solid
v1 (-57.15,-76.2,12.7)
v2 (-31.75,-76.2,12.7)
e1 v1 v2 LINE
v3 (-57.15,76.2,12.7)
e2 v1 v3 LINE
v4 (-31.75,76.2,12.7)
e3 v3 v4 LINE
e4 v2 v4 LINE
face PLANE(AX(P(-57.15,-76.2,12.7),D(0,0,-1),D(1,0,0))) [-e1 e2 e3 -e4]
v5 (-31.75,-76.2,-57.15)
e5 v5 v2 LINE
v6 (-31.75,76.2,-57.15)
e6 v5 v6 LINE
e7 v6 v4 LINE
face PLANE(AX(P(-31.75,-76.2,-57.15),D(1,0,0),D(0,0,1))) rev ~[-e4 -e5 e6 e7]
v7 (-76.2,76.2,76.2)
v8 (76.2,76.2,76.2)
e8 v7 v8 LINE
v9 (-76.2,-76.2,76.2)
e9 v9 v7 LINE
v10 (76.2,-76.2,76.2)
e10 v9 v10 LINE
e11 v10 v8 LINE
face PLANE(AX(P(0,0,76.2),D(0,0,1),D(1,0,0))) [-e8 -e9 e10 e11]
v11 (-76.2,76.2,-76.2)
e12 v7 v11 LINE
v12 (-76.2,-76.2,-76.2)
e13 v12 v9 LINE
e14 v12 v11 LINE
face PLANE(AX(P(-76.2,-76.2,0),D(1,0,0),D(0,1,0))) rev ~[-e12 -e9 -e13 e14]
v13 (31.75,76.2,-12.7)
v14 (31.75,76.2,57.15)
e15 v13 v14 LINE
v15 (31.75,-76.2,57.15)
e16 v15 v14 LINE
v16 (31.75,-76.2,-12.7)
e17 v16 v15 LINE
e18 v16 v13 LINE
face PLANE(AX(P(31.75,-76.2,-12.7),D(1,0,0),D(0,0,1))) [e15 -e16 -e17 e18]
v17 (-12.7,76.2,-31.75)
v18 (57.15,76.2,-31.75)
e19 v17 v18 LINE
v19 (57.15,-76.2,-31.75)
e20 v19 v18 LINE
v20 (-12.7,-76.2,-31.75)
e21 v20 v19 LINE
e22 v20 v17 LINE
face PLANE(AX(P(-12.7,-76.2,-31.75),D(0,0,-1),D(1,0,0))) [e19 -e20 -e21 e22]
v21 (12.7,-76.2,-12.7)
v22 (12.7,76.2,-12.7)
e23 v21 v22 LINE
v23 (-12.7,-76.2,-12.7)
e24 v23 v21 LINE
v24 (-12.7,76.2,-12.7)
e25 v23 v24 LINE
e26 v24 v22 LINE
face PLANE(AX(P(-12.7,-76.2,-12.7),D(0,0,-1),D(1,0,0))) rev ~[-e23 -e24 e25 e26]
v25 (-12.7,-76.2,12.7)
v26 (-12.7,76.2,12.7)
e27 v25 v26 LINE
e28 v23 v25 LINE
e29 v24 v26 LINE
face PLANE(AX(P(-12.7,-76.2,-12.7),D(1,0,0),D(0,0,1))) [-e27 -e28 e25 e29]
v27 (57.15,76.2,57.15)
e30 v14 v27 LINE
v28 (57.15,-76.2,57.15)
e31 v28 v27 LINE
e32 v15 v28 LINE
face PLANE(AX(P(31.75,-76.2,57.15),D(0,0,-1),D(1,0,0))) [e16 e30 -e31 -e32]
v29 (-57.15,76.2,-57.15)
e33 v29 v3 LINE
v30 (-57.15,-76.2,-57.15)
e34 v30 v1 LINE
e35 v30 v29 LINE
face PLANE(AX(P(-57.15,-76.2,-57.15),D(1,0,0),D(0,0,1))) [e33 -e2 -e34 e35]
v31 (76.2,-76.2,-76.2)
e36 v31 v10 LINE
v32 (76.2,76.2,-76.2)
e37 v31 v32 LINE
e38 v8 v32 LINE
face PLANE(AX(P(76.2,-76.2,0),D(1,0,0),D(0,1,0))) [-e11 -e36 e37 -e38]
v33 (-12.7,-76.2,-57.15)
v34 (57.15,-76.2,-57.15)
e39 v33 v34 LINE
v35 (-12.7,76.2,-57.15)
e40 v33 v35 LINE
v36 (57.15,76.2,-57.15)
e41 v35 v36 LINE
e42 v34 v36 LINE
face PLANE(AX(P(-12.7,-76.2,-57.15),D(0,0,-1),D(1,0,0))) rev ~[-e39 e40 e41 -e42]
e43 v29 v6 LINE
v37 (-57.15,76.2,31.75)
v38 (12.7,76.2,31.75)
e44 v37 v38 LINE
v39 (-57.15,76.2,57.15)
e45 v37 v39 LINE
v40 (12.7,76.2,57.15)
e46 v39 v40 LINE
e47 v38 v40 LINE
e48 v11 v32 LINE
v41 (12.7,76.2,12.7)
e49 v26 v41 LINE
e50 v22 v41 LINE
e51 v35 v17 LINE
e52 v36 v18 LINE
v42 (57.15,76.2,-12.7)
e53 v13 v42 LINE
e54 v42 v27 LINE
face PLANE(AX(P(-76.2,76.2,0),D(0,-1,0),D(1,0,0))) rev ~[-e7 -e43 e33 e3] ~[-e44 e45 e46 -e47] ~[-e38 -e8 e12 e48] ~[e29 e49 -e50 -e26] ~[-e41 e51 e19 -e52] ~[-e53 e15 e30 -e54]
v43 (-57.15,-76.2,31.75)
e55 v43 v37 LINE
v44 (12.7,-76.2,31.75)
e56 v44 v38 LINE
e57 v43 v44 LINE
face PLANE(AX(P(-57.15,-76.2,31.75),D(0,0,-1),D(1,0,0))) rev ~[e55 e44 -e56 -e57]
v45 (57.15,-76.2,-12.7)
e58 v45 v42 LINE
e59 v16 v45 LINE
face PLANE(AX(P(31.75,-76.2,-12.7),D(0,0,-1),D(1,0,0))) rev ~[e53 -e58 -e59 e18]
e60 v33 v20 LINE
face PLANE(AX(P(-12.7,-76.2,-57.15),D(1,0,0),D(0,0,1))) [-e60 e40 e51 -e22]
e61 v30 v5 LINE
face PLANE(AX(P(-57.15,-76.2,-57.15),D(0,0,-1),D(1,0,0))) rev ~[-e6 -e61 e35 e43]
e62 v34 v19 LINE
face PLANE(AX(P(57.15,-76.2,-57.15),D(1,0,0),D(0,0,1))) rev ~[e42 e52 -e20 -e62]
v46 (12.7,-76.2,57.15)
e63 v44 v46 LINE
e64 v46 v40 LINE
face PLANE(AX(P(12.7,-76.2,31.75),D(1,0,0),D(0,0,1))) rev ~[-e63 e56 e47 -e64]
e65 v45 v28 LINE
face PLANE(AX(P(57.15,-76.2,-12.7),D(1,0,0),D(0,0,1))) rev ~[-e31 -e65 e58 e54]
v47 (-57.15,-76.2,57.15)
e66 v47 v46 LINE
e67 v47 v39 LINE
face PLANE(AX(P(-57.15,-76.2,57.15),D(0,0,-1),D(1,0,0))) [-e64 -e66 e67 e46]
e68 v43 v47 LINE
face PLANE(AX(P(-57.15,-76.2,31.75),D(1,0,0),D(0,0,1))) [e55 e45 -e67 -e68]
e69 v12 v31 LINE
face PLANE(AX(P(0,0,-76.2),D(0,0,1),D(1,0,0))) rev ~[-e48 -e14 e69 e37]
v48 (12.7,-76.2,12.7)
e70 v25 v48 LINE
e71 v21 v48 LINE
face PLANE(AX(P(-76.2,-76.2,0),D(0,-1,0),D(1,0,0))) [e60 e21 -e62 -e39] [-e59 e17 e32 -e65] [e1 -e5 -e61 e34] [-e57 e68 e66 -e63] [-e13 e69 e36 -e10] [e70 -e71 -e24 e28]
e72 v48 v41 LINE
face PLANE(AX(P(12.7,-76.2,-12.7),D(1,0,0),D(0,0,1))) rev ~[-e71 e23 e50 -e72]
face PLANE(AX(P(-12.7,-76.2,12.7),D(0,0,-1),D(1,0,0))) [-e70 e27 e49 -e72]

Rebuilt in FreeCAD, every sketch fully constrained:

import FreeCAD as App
import Part
import Sketcher
from FreeCAD import Vector
Q = App.Units.Quantity

doc = App.newDocument("Part")
body = doc.addObject("PartDesign::Body", "Body")

# Sketch on XY plane
sketch1 = body.newObject("Sketcher::SketchObject", "Sketch")
sketch1.AttachmentSupport = (doc.getObject("XY_Plane"), [""])
sketch1.MapMode = "FlatFace"
sketch1.addGeometry(Part.LineSegment(Vector(-76, 76, 0), Vector(-76, -76, 0)), False)
sketch1.addGeometry(Part.LineSegment(Vector(-76, -76, 0), Vector(76, -76, 0)), False)
sketch1.addGeometry(Part.LineSegment(Vector(76, -76, 0), Vector(76, 76, 0)), False)
sketch1.addGeometry(Part.LineSegment(Vector(76, 76, 0), Vector(-76, 76, 0)), False)
sketch1.addConstraint(Sketcher.Constraint("Coincident", 0, 2, 1, 1))
sketch1.addConstraint(Sketcher.Constraint("Coincident", 1, 2, 2, 1))
sketch1.addConstraint(Sketcher.Constraint("Coincident", 2, 2, 3, 1))
sketch1.addConstraint(Sketcher.Constraint("Coincident", 3, 2, 0, 1))
sketch1.addConstraint(Sketcher.Constraint("Vertical", 0))
sketch1.addConstraint(Sketcher.Constraint("Horizontal", 1))
sketch1.addConstraint(Sketcher.Constraint("Vertical", 2))
sketch1.addConstraint(Sketcher.Constraint("Horizontal", 3))
sketch1.addConstraint(Sketcher.Constraint("Symmetric", 0, 2, 2, 2, -1, 1))
sketch1.addConstraint(Sketcher.Constraint("Equal", 3, 0))
sketch1.addConstraint(Sketcher.Constraint("DistanceX", 1, 1, 1, 2, Q("6 in")))
pad1 = body.newObject("PartDesign::Pad", "Pad")
pad1.Profile = sketch1
pad1.Length = Q("6 in")
pad1.Midplane = True

# Sketch on XZ plane
sketch2 = body.newObject("Sketcher::SketchObject", "Sketch001")
sketch2.AttachmentSupport = (doc.getObject("XZ_Plane"), [""])
sketch2.MapMode = "FlatFace"
sketch2.AttachmentOffset = App.Placement(Vector(0, 0, 3 * 25.4), App.Rotation())
sketch2.addGeometry(Part.LineSegment(Vector(-57, 57, 0), Vector(-57, 32, 0)), False)
sketch2.addGeometry(Part.LineSegment(Vector(-57, 32, 0), Vector(13, 32, 0)), False)
sketch2.addGeometry(Part.LineSegment(Vector(13, 32, 0), Vector(13, 57, 0)), False)
sketch2.addGeometry(Part.LineSegment(Vector(13, 57, 0), Vector(-57, 57, 0)), False)
sketch2.addGeometry(Part.LineSegment(Vector(32, 57, 0), Vector(32, -13, 0)), False)
sketch2.addGeometry(Part.LineSegment(Vector(32, -13, 0), Vector(57, -13, 0)), False)
sketch2.addGeometry(Part.LineSegment(Vector(57, -13, 0), Vector(57, 57, 0)), False)
sketch2.addGeometry(Part.LineSegment(Vector(57, 57, 0), Vector(32, 57, 0)), False)
sketch2.addGeometry(Part.LineSegment(Vector(-57, 13, 0), Vector(-57, -57, 0)), False)
sketch2.addGeometry(Part.LineSegment(Vector(-57, -57, 0), Vector(-32, -57, 0)), False)
sketch2.addGeometry(Part.LineSegment(Vector(-32, -57, 0), Vector(-32, 13, 0)), False)
sketch2.addGeometry(Part.LineSegment(Vector(-32, 13, 0), Vector(-57, 13, 0)), False)
sketch2.addGeometry(Part.LineSegment(Vector(-13, 13, 0), Vector(-13, -13, 0)), False)
sketch2.addGeometry(Part.LineSegment(Vector(-13, -13, 0), Vector(13, -13, 0)), False)
sketch2.addGeometry(Part.LineSegment(Vector(13, -13, 0), Vector(13, 13, 0)), False)
sketch2.addGeometry(Part.LineSegment(Vector(13, 13, 0), Vector(-13, 13, 0)), False)
sketch2.addGeometry(Part.LineSegment(Vector(-13, -32, 0), Vector(-13, -57, 0)), False)
sketch2.addGeometry(Part.LineSegment(Vector(-13, -57, 0), Vector(57, -57, 0)), False)
sketch2.addGeometry(Part.LineSegment(Vector(57, -57, 0), Vector(57, -32, 0)), False)
sketch2.addGeometry(Part.LineSegment(Vector(57, -32, 0), Vector(-13, -32, 0)), False)
sketch2.addConstraint(Sketcher.Constraint("Coincident", 0, 2, 1, 1))
sketch2.addConstraint(Sketcher.Constraint("Coincident", 1, 2, 2, 1))
sketch2.addConstraint(Sketcher.Constraint("Coincident", 2, 2, 3, 1))
sketch2.addConstraint(Sketcher.Constraint("Coincident", 3, 2, 0, 1))
sketch2.addConstraint(Sketcher.Constraint("Coincident", 4, 2, 5, 1))
sketch2.addConstraint(Sketcher.Constraint("Coincident", 5, 2, 6, 1))
sketch2.addConstraint(Sketcher.Constraint("Coincident", 6, 2, 7, 1))
sketch2.addConstraint(Sketcher.Constraint("Coincident", 7, 2, 4, 1))
sketch2.addConstraint(Sketcher.Constraint("Coincident", 8, 2, 9, 1))
sketch2.addConstraint(Sketcher.Constraint("Coincident", 9, 2, 10, 1))
sketch2.addConstraint(Sketcher.Constraint("Coincident", 10, 2, 11, 1))
sketch2.addConstraint(Sketcher.Constraint("Coincident", 11, 2, 8, 1))
sketch2.addConstraint(Sketcher.Constraint("Coincident", 12, 2, 13, 1))
sketch2.addConstraint(Sketcher.Constraint("Coincident", 13, 2, 14, 1))
sketch2.addConstraint(Sketcher.Constraint("Coincident", 14, 2, 15, 1))
sketch2.addConstraint(Sketcher.Constraint("Coincident", 15, 2, 12, 1))
sketch2.addConstraint(Sketcher.Constraint("Coincident", 16, 2, 17, 1))
sketch2.addConstraint(Sketcher.Constraint("Coincident", 17, 2, 18, 1))
sketch2.addConstraint(Sketcher.Constraint("Coincident", 18, 2, 19, 1))
sketch2.addConstraint(Sketcher.Constraint("Coincident", 19, 2, 16, 1))
sketch2.addConstraint(Sketcher.Constraint("Vertical", 0))
sketch2.addConstraint(Sketcher.Constraint("Horizontal", 1))
sketch2.addConstraint(Sketcher.Constraint("Vertical", 2))
sketch2.addConstraint(Sketcher.Constraint("Horizontal", 3))
sketch2.addConstraint(Sketcher.Constraint("Vertical", 4))
sketch2.addConstraint(Sketcher.Constraint("Horizontal", 5))
sketch2.addConstraint(Sketcher.Constraint("Vertical", 6))
sketch2.addConstraint(Sketcher.Constraint("Horizontal", 7))
sketch2.addConstraint(Sketcher.Constraint("Vertical", 8))
sketch2.addConstraint(Sketcher.Constraint("Horizontal", 9))
sketch2.addConstraint(Sketcher.Constraint("Vertical", 10))
sketch2.addConstraint(Sketcher.Constraint("Horizontal", 11))
sketch2.addConstraint(Sketcher.Constraint("Vertical", 12))
sketch2.addConstraint(Sketcher.Constraint("Horizontal", 13))
sketch2.addConstraint(Sketcher.Constraint("Vertical", 14))
sketch2.addConstraint(Sketcher.Constraint("Horizontal", 15))
sketch2.addConstraint(Sketcher.Constraint("Vertical", 16))
sketch2.addConstraint(Sketcher.Constraint("Horizontal", 17))
sketch2.addConstraint(Sketcher.Constraint("Vertical", 18))
sketch2.addConstraint(Sketcher.Constraint("Horizontal", 19))
sketch2.addConstraint(Sketcher.Constraint("Symmetric", 6, 2, 8, 2, -1, 1))
sketch2.addConstraint(Sketcher.Constraint("Symmetric", 4, 2, 10, 2, -1, 1))
sketch2.addConstraint(Sketcher.Constraint("Symmetric", 12, 2, 14, 2, -1, 1))
sketch2.addConstraint(Sketcher.Constraint("Symmetric", 2, 2, 16, 2, -1, 1))
sketch2.addConstraint(Sketcher.Constraint("Symmetric", 0, 2, 18, 2, -1, 1))
sketch2.addConstraint(Sketcher.Constraint("Symmetric", 3, 2, 6, 2, -2))
sketch2.addConstraint(Sketcher.Constraint("Horizontal", 5, 2, 12, 2))
sketch2.addConstraint(Sketcher.Constraint("Vertical", 2, 2, 13, 2))
sketch2.addConstraint(Sketcher.Constraint("Equal", 11, 13))
sketch2.addConstraint(Sketcher.Constraint("Equal", 15, 0))
sketch2.addConstraint(Sketcher.Constraint("Equal", 19, 4))
sketch2.addConstraint(Sketcher.Constraint("Equal", 2, 12))
sketch2.addConstraint(Sketcher.Constraint("DistanceX", 5, 1, 5, 2, Q("1 in")))
sketch2.addConstraint(Sketcher.Constraint("DistanceX", 1, 1, 1, 2, Q("2.75 in")))
pocket1 = body.newObject("PartDesign::Pocket", "Pocket")
pocket1.Profile = sketch2
pocket1.Type = "ThroughAll"

doc.recompute()
